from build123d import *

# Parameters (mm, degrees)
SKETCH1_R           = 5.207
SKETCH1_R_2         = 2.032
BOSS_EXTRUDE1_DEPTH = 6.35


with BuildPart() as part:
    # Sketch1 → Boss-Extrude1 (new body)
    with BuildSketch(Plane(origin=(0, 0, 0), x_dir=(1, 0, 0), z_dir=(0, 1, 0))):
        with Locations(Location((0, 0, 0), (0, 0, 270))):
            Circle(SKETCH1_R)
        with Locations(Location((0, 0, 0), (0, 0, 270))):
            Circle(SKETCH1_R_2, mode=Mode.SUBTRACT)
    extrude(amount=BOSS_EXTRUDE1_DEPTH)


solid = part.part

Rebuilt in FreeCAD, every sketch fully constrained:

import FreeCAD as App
import Part
import Sketcher
Q = App.Units.Quantity

doc = App.newDocument("Part")
params = doc.addObject("Spreadsheet::Sheet", "Params")
for row, (alias, value) in enumerate([
    ("sketch1_diameter", "0.41 in"),
    ("sketch1_diameter2", "0.16 in"),
    ("pad1_length", "0.25 in"),
], start=1):
    params.set(f"A{row}", alias)
    params.set(f"B{row}", "=" + value)
    params.setAlias(f"B{row}", alias)

body = doc.addObject("PartDesign::Body", "Body")

# Sketch on XZ plane
sketch1 = body.newObject("Sketcher::SketchObject", "Sketch")
sketch1.AttachmentSupport = (doc.getObject("XZ_Plane"), [""])
sketch1.MapMode = "FlatFace"
sketch1.addGeometry(Part.Circle(App.Vector(0, 0, 0), App.Vector(0, 0, 1), 5.207), False)
sketch1.addGeometry(Part.Circle(App.Vector(0, 0, 0), App.Vector(0, 0, 1), 2.032), False)
sketch1.addConstraint(Sketcher.Constraint("Coincident", 0, 3, -1, 1))
sketch1.addConstraint(Sketcher.Constraint("Coincident", 1, 3, -1, 1))
sketch1.addConstraint(Sketcher.Constraint("Diameter", 0, Q("0.41 in")))
sketch1.addConstraint(Sketcher.Constraint("Diameter", 1, Q("0.16 in")))
sketch1.setExpression("Constraints[2]", "Params.sketch1_diameter")
sketch1.setExpression("Constraints[3]", "Params.sketch1_diameter2")
pad1 = body.newObject("PartDesign::Pad", "Pad")
pad1.Profile = sketch1
pad1.setExpression("Length", "Params.pad1_length")
pad1.Reversed = True

doc.recompute()
